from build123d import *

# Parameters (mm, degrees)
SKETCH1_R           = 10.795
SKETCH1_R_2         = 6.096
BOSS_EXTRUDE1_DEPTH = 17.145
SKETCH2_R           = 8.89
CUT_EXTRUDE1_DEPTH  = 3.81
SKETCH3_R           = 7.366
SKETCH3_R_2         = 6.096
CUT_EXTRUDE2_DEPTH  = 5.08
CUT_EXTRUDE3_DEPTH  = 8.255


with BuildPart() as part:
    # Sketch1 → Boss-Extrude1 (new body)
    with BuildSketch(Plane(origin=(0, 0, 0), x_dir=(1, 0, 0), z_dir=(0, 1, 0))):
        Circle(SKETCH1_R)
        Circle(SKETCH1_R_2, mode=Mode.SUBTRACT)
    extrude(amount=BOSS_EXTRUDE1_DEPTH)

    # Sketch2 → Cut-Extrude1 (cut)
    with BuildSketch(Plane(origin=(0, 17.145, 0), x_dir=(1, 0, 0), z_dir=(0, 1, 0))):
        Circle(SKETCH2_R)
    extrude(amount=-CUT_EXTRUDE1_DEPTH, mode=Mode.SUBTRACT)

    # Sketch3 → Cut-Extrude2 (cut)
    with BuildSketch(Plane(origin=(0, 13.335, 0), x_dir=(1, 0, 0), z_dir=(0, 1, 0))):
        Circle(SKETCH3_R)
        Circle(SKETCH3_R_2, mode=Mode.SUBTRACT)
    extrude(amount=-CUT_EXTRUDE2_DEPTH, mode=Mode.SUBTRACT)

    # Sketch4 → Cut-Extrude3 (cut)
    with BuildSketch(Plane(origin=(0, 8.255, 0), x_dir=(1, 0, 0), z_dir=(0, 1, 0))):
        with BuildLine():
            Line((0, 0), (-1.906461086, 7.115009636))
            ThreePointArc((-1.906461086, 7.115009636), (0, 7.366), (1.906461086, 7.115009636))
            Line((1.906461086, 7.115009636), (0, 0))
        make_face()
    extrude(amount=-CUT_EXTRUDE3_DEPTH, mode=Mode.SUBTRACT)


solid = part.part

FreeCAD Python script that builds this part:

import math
import FreeCAD as App
import Part
import Sketcher
Q = App.Units.Quantity

doc = App.newDocument("Part")
body = doc.addObject("PartDesign::Body", "Body")

sketch1 = body.newObject("Sketcher::SketchObject", "Sketch")
sketch1.AttachmentSupport = (doc.getObject("XZ_Plane"), [""])
sketch1.MapMode = "FlatFace"
sketch1.addGeometry(Part.Circle(App.Vector(0, 0, 0), App.Vector(0, 0, 1), 11), False)
sketch1.addGeometry(Part.Circle(App.Vector(0, 0, 0), App.Vector(0, 0, 1), 6), False)
sketch1.addConstraint(Sketcher.Constraint("Coincident", 0, 3, -1, 1))
sketch1.addConstraint(Sketcher.Constraint("Coincident", 1, 3, -1, 1))
sketch1.addConstraint(Sketcher.Constraint("Diameter", 0, Q("0.85 in")))
sketch1.addConstraint(Sketcher.Constraint("Diameter", 1, Q("0.48 in")))
pad1 = body.newObject("PartDesign::Pad", "Pad")
pad1.Profile = sketch1
pad1.Length = Q("0.675 in")
pad1.Reversed = True

sketch2 = body.newObject("Sketcher::SketchObject", "Sketch001")
sketch2.AttachmentSupport = (doc.getObject("XZ_Plane"), [""])
sketch2.MapMode = "FlatFace"
sketch2.AttachmentOffset = App.Placement(App.Vector(0, 0, -0.675 * 25.4), App.Rotation())
sketch2.addGeometry(Part.Circle(App.Vector(0, 0, 0), App.Vector(0, 0, 1), 9), False)
sketch2.addConstraint(Sketcher.Constraint("Coincident", 0, 3, -1, 1))
sketch2.addConstraint(Sketcher.Constraint("Diameter", 0, Q("0.7 in")))
pocket1 = body.newObject("PartDesign::Pocket", "Pocket")
pocket1.Profile = sketch2
pocket1.Length = Q("0.15 in")
pocket1.Reversed = True

sketch3 = body.newObject("Sketcher::SketchObject", "Sketch002")
sketch3.AttachmentSupport = (doc.getObject("XZ_Plane"), [""])
sketch3.MapMode = "FlatFace"
sketch3.AttachmentOffset = App.Placement(App.Vector(0, 0, -0.525 * 25.4), App.Rotation())
sketch3.addGeometry(Part.Circle(App.Vector(0, 0, 0), App.Vector(0, 0, 1), 7), False)
sketch3.addGeometry(Part.Circle(App.Vector(0, 0, 0), App.Vector(0, 0, 1), 6), False)
sketch3.addConstraint(Sketcher.Constraint("Coincident", 0, 3, -1, 1))
sketch3.addConstraint(Sketcher.Constraint("Coincident", 1, 3, -1, 1))
sketch3.addConstraint(Sketcher.Constraint("Diameter", 0, Q("0.58 in")))
sketch3.addConstraint(Sketcher.Constraint("Diameter", 1, Q("0.48 in")))
pocket2 = body.newObject("PartDesign::Pocket", "Pocket001")
pocket2.Profile = sketch3
pocket2.Length = Q("0.2 in")
pocket2.Reversed = True

sketch4 = body.newObject("Sketcher::SketchObject", "Sketch003")
sketch4.AttachmentSupport = (doc.getObject("XZ_Plane"), [""])
sketch4.MapMode = "FlatFace"
sketch4.AttachmentOffset = App.Placement(App.Vector(0, 0, -0.325 * 25.4), App.Rotation())
sketch4.addGeometry(Part.LineSegment(App.Vector(-1.9, -7.1, 0), App.Vector(0, 0, 0)), False)
sketch4.addGeometry(Part.LineSegment(App.Vector(0, 0, 0), App.Vector(1.9, -7.1, 0)), False)
sketch4.addGeometry(Part.ArcOfCircle(Part.Circle(App.Vector(0, 0, 0), App.Vector(0, 0, 1), 7.4), math.radians(-105), math.radians(-75)), False)
sketch4.addConstraint(Sketcher.Constraint("Coincident", 0, 2, 1, 1))
sketch4.addConstraint(Sketcher.Constraint("Coincident", 1, 2, 2, 2))
sketch4.addConstraint(Sketcher.Constraint("Coincident", 2, 1, 0, 1))
sketch4.addConstraint(Sketcher.Constraint("Coincident", 2, 3, -1, 1))
sketch4.addConstraint(Sketcher.Constraint("Coincident", 0, 2, -1, 1))
sketch4.addConstraint(Sketcher.Constraint("Horizontal", 1, 2, 2, 1))
sketch4.addConstraint(Sketcher.Constraint("Radius", 2, Q("0.29 in")))
sketch4.addConstraint(Sketcher.Constraint("Angle", 0, Q("75 deg")))
pocket3 = body.newObject("PartDesign::Pocket", "Pocket002")
pocket3.Profile = sketch4
pocket3.Length = Q("0.325 in")
pocket3.Reversed = True

doc.recompute()
